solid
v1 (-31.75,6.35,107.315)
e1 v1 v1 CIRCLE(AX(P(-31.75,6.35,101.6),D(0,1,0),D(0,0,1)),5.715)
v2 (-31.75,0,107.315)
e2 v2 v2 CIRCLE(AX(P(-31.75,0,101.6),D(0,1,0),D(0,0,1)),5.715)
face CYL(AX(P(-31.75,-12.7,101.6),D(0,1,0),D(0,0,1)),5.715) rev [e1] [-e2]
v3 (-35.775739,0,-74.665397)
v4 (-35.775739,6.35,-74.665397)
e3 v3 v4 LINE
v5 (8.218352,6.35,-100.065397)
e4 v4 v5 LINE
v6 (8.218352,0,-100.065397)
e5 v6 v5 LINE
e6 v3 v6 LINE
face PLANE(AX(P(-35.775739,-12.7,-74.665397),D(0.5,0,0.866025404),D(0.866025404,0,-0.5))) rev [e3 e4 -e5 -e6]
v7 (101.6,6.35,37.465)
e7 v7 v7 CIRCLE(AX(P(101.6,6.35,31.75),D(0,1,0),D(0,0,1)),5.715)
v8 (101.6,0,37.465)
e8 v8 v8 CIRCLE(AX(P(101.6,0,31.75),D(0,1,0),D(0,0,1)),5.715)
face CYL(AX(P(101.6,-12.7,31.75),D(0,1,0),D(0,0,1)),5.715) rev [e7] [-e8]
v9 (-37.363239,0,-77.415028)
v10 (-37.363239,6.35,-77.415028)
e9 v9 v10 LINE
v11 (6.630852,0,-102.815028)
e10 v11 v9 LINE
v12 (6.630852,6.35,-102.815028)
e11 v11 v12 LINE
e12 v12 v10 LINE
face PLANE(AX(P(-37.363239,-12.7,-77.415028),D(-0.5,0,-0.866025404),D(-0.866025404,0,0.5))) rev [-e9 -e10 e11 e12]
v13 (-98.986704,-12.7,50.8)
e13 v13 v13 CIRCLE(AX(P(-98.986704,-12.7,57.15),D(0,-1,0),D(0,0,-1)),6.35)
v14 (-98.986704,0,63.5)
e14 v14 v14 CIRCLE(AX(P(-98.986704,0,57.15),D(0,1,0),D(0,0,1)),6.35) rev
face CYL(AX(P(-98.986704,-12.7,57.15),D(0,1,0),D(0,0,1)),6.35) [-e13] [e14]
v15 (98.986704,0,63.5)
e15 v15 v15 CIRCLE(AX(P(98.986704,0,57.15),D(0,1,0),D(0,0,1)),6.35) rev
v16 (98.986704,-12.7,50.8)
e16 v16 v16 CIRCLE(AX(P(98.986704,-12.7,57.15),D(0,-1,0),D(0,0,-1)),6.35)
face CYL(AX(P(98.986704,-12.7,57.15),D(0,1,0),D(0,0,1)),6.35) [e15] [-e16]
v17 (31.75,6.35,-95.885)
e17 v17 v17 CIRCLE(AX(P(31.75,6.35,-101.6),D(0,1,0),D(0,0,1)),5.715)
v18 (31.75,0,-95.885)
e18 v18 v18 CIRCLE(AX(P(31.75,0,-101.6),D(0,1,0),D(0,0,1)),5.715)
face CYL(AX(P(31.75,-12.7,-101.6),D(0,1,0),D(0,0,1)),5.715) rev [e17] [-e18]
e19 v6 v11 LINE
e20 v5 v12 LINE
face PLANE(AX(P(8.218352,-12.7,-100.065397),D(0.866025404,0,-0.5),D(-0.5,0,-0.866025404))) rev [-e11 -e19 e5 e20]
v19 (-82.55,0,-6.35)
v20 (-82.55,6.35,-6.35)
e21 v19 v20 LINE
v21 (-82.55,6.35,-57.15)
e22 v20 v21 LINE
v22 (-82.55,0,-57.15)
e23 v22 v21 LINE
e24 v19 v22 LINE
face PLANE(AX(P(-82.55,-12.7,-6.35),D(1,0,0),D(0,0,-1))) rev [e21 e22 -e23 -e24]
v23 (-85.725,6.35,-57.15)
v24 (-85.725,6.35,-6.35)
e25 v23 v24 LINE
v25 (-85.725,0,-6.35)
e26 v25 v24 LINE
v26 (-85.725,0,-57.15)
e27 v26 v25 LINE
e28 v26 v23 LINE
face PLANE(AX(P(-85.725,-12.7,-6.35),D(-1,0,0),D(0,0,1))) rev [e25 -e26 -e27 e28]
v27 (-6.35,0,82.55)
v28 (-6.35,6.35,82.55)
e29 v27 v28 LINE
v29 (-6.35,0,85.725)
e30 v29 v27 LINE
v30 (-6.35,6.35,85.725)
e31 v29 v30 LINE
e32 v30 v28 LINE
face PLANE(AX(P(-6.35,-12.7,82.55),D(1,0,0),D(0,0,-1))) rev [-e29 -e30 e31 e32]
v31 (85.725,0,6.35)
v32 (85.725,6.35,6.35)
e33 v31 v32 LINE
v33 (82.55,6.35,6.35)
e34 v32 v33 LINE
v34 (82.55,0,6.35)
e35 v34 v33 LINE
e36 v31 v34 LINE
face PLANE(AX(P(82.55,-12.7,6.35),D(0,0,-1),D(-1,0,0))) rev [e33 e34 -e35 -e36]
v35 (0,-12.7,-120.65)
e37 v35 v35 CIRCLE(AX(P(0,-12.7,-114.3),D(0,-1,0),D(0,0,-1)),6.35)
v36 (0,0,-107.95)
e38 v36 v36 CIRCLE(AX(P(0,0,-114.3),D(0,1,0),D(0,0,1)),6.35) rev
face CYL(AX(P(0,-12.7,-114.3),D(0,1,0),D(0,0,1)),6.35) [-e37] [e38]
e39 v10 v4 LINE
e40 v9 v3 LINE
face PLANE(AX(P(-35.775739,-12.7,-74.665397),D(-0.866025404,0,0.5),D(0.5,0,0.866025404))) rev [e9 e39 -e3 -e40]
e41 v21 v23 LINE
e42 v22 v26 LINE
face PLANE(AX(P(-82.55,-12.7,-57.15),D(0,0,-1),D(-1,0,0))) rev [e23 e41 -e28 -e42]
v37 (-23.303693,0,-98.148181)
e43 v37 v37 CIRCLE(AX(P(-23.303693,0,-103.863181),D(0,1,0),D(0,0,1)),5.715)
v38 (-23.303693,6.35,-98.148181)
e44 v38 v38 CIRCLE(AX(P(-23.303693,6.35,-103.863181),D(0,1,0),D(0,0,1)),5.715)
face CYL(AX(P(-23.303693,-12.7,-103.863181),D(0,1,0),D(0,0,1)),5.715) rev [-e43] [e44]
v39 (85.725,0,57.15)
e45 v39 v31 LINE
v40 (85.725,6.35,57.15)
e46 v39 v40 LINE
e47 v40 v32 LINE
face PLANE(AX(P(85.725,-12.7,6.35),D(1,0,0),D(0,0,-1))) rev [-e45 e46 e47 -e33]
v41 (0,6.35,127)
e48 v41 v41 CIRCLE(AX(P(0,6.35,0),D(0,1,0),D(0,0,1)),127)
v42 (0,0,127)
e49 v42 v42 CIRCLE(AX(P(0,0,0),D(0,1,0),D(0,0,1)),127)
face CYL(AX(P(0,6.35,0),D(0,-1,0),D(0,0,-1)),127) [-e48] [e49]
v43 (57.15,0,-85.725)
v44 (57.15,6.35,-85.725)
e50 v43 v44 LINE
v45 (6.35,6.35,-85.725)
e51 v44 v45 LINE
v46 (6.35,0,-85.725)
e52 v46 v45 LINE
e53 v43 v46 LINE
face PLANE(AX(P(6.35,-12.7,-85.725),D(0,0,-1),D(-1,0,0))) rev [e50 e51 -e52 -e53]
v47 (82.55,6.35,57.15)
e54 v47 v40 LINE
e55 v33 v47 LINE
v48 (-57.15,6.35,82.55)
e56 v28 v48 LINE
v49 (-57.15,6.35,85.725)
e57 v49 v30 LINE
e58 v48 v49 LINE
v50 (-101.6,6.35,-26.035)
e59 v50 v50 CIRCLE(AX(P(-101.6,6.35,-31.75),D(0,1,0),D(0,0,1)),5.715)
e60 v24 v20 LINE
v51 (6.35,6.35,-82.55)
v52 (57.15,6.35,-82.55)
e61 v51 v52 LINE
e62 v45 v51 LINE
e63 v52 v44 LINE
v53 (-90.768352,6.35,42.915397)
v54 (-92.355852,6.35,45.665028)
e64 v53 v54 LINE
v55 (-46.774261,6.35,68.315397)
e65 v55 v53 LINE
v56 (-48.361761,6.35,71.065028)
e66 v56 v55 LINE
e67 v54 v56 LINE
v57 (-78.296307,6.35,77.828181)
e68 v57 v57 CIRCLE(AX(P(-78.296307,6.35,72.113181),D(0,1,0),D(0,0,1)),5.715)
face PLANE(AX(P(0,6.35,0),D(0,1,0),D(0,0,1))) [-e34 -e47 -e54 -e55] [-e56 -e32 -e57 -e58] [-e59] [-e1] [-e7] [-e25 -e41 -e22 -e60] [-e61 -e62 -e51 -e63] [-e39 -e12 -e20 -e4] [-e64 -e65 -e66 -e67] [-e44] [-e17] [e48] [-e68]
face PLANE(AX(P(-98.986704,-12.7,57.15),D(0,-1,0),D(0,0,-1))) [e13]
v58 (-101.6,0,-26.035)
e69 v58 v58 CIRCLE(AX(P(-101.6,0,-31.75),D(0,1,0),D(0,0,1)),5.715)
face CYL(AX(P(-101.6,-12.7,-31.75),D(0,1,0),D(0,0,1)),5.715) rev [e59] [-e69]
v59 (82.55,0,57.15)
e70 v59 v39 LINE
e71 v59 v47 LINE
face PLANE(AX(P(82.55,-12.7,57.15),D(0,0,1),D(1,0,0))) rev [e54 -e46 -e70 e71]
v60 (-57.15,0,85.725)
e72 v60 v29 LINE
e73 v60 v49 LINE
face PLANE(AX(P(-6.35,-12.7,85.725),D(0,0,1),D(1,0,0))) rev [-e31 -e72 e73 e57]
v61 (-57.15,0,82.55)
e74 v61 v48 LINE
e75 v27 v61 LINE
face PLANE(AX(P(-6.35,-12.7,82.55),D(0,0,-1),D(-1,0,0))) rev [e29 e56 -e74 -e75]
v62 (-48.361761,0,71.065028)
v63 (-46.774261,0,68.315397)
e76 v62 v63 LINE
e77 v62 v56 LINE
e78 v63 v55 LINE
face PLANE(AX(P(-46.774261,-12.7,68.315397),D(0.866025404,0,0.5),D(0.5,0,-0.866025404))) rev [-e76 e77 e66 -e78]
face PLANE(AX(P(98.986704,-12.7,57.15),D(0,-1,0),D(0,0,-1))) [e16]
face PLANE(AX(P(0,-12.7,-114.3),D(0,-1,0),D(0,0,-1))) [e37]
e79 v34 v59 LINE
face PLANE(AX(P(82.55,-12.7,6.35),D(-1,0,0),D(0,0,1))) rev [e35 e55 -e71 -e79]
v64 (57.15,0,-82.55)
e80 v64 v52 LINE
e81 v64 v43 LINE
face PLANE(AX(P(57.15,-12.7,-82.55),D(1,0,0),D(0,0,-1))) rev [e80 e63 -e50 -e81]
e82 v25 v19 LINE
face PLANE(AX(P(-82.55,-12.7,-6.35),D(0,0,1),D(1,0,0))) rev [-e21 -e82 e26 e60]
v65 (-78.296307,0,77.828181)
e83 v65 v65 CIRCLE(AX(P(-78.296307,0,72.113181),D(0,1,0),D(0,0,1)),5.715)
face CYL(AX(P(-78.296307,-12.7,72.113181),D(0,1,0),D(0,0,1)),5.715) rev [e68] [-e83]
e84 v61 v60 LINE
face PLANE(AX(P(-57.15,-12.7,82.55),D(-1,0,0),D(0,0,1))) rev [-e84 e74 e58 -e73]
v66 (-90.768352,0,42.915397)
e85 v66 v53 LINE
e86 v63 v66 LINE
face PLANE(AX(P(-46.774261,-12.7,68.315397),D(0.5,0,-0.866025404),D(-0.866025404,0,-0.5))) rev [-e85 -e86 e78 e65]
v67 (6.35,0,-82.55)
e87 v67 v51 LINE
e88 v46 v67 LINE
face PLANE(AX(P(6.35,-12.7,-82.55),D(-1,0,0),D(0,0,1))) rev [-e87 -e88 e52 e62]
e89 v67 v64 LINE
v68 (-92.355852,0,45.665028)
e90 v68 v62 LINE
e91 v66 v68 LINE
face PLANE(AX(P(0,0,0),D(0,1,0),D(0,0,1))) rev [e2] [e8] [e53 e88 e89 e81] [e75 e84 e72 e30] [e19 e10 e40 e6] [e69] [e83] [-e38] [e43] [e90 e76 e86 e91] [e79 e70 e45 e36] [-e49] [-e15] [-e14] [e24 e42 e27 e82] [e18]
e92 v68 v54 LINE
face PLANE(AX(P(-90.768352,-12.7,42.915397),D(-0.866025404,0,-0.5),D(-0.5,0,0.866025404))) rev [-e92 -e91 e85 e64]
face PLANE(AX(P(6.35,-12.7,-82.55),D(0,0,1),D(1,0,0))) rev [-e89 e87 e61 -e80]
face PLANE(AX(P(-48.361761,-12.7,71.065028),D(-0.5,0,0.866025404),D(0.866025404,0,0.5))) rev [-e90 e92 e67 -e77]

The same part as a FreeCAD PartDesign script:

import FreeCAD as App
import Part
import Sketcher
Q = App.Units.Quantity

doc = App.newDocument("Part")
params = doc.addObject("Spreadsheet::Sheet", "Params")
for row, (alias, value) in enumerate([
    ("sketch1_diameter", "10 in"),
    ("pad1_length", "0.25 in"),
    ("sketch2_diameter", "0.5 in"),
    ("pad2_length", "0.5 in"),
    ("sketch3_diameter", "0.45 in"),
    ("sketch3_width", "2 in"),
    ("sketch3_length", "2 in"),
    ("sketch3_width2", "0.125 in"),
    ("sketch3_length2", "0.125 in"),
], start=1):
    params.set(f"A{row}", alias)
    params.set(f"B{row}", "=" + value)
    params.setAlias(f"B{row}", alias)

body = doc.addObject("PartDesign::Body", "Body")

# Sketch on XZ plane
sketch1 = body.newObject("Sketcher::SketchObject", "Sketch")
sketch1.AttachmentSupport = (doc.getObject("XZ_Plane"), [""])
sketch1.MapMode = "FlatFace"
sketch1.addGeometry(Part.Circle(App.Vector(0, 0, 0), App.Vector(0, 0, 1), 127), False)
sketch1.addConstraint([
    Sketcher.Constraint("Coincident", 0, 3, -1, 1),
    Sketcher.Constraint("Diameter", 0, Q("10 in")),
])
sketch1.setExpression("Constraints[1]", "Params.sketch1_diameter")
pad1 = body.newObject("PartDesign::Pad", "Pad")
pad1.Profile = sketch1
pad1.setExpression("Length", "Params.pad1_length")
pad1.Reversed = True

# Sketch on XZ plane
sketch2 = body.newObject("Sketcher::SketchObject", "Sketch001")
sketch2.AttachmentSupport = (doc.getObject("XZ_Plane"), [""])
sketch2.MapMode = "FlatFace"
sketch2.addGeometry([
    Part.Circle(App.Vector(0, -114, 0), App.Vector(0, 0, 1), 6),
    Part.Circle(App.Vector(-99, 57, 0), App.Vector(0, 0, 1), 6),
    Part.Circle(App.Vector(99, 57, 0), App.Vector(0, 0, 1), 6),
], False)
sketch2.addConstraint([
    Sketcher.Constraint("Equal", 0, 1),
    Sketcher.Constraint("Equal", 1, 2),
    Sketcher.Constraint("Symmetric", 1, 3, 2, 3, -2),
    Sketcher.Constraint("PointOnObject", 0, 3, -2),
    Sketcher.Constraint("Diameter", 0, Q("0.5 in")),
    Sketcher.Constraint("DistanceY", 0, 3, -1, 1, Q("4.5 in")),
    Sketcher.Constraint("DistanceY", -1, 1, 1, 3, Q("2.25 in")),
    Sketcher.Constraint("DistanceX", 1, 3, -1, 1, 98.986704),
])
sketch2.setExpression("Constraints[4]", "Params.sketch2_diameter")
pad2 = body.newObject("PartDesign::Pad", "Pad001")
pad2.Profile = sketch2
pad2.setExpression("Length", "Params.pad2_length")

# Sketch on XZ plane
sketch3 = body.newObject("Sketcher::SketchObject", "Sketch002")
sketch3.AttachmentSupport = (doc.getObject("XZ_Plane"), [""])
sketch3.MapMode = "FlatFace"
sketch3.AttachmentOffset = App.Placement(App.Vector(0, 0, -0.25 * 25.4), App.Rotation())
sketch3.addGeometry([
    Part.Circle(App.Vector(101.6, 31.8, 0), App.Vector(0, 0, 1), 5.7),  # 0
    Part.Circle(App.Vector(-31.8, 101.6, 0), App.Vector(0, 0, 1), 5.7),  # 1
    Part.Circle(App.Vector(-101.6, -31.8, 0), App.Vector(0, 0, 1), 5.7),  # 2
    Part.Circle(App.Vector(31.8, -101.6, 0), App.Vector(0, 0, 1), 5.7),  # 3
    Part.Circle(App.Vector(-78.3, 72.1, 0), App.Vector(0, 0, 1), 5.7),  # 4
    Part.Circle(App.Vector(-23.3, -103.9, 0), App.Vector(0, 0, 1), 5.7),  # 5
    Part.LineSegment(App.Vector(-57.1, 82.5, 0), App.Vector(-57.1, 85.7, 0)),  # 6
    Part.LineSegment(App.Vector(-57.1, 85.7, 0), App.Vector(-6.3, 85.7, 0)),  # 7
    Part.LineSegment(App.Vector(-6.3, 85.7, 0), App.Vector(-6.3, 82.5, 0)),  # 8
    Part.LineSegment(App.Vector(-6.3, 82.5, 0), App.Vector(-57.1, 82.5, 0)),  # 9
    Part.LineSegment(App.Vector(82.5, 6.3, 0), App.Vector(82.5, 57.1, 0)),  # 10
    Part.LineSegment(App.Vector(82.5, 57.1, 0), App.Vector(85.7, 57.1, 0)),  # 11
    Part.LineSegment(App.Vector(85.7, 57.1, 0), App.Vector(85.7, 6.3, 0)),  # 12
    Part.LineSegment(App.Vector(85.7, 6.3, 0), App.Vector(82.5, 6.3, 0)),  # 13
    Part.LineSegment(App.Vector(-85.7, -57.1, 0), App.Vector(-85.7, -6.3, 0)),  # 14
    Part.LineSegment(App.Vector(-85.7, -6.3, 0), App.Vector(-82.5, -6.3, 0)),  # 15
    Part.LineSegment(App.Vector(-82.5, -6.3, 0), App.Vector(-82.5, -57.1, 0)),  # 16
    Part.LineSegment(App.Vector(-82.5, -57.1, 0), App.Vector(-85.7, -57.1, 0)),  # 17
    Part.LineSegment(App.Vector(6.3, -85.7, 0), App.Vector(6.3, -82.5, 0)),  # 18
    Part.LineSegment(App.Vector(6.3, -82.5, 0), App.Vector(57.1, -82.5, 0)),  # 19
    Part.LineSegment(App.Vector(57.1, -82.5, 0), App.Vector(57.1, -85.7, 0)),  # 20
    Part.LineSegment(App.Vector(57.1, -85.7, 0), App.Vector(6.3, -85.7, 0)),  # 21
    Part.LineSegment(App.Vector(-92.4, 45.7, 0), App.Vector(-48.4, 71.1, 0)),  # 22
    Part.LineSegment(App.Vector(-48.4, 71.1, 0), App.Vector(-46.8, 68.3, 0)),  # 23
    Part.LineSegment(App.Vector(-46.8, 68.3, 0), App.Vector(-90.8, 42.9, 0)),  # 24
    Part.LineSegment(App.Vector(-90.8, 42.9, 0), App.Vector(-92.4, 45.7, 0)),  # 25
    Part.LineSegment(App.Vector(6.6, -102.8, 0), App.Vector(-37.4, -77.4, 0)),  # 26
    Part.LineSegment(App.Vector(-37.4, -77.4, 0), App.Vector(-35.8, -74.7, 0)),  # 27
    Part.LineSegment(App.Vector(-35.8, -74.7, 0), App.Vector(8.2, -100.1, 0)),  # 28
    Part.LineSegment(App.Vector(8.2, -100.1, 0), App.Vector(6.6, -102.8, 0)),  # 29
], False)
sketch3.addConstraint([
    Sketcher.Constraint("Coincident", 6, 2, 7, 1),
    Sketcher.Constraint("Coincident", 7, 2, 8, 1),
    Sketcher.Constraint("Coincident", 8, 2, 9, 1),
    Sketcher.Constraint("Coincident", 9, 2, 6, 1),
    Sketcher.Constraint("Coincident", 10, 2, 11, 1),
    Sketcher.Constraint("Coincident", 11, 2, 12, 1),
    Sketcher.Constraint("Coincident", 12, 2, 13, 1),
    Sketcher.Constraint("Coincident", 13, 2, 10, 1),
    Sketcher.Constraint("Coincident", 14, 2, 15, 1),
    Sketcher.Constraint("Coincident", 15, 2, 16, 1),
    Sketcher.Constraint("Coincident", 16, 2, 17, 1),
    Sketcher.Constraint("Coincident", 17, 2, 14, 1),
    Sketcher.Constraint("Coincident", 18, 2, 19, 1),
    Sketcher.Constraint("Coincident", 19, 2, 20, 1),
    Sketcher.Constraint("Coincident", 20, 2, 21, 1),
    Sketcher.Constraint("Coincident", 21, 2, 18, 1),
    Sketcher.Constraint("Coincident", 22, 2, 23, 1),
    Sketcher.Constraint("Coincident", 23, 2, 24, 1),
    Sketcher.Constraint("Coincident", 24, 2, 25, 1),
    Sketcher.Constraint("Coincident", 25, 2, 22, 1),
    Sketcher.Constraint("Coincident", 26, 2, 27, 1),
    Sketcher.Constraint("Coincident", 27, 2, 28, 1),
    Sketcher.Constraint("Coincident", 28, 2, 29, 1),
    Sketcher.Constraint("Coincident", 29, 2, 26, 1),
    Sketcher.Constraint("Vertical", 6),
    Sketcher.Constraint("Horizontal", 7),
    Sketcher.Constraint("Vertical", 8),
    Sketcher.Constraint("Horizontal", 9),
    Sketcher.Constraint("Vertical", 10),
    Sketcher.Constraint("Horizontal", 11),
    Sketcher.Constraint("Vertical", 12),
    Sketcher.Constraint("Horizontal", 13),
    Sketcher.Constraint("Vertical", 14),
    Sketcher.Constraint("Horizontal", 15),
    Sketcher.Constraint("Vertical", 16),
    Sketcher.Constraint("Horizontal", 17),
    Sketcher.Constraint("Vertical", 18),
    Sketcher.Constraint("Horizontal", 19),
    Sketcher.Constraint("Vertical", 20),
    Sketcher.Constraint("Horizontal", 21),
    Sketcher.Constraint("Equal", 0, 1),
    Sketcher.Constraint("Equal", 1, 2),
    Sketcher.Constraint("Equal", 2, 3),
    Sketcher.Constraint("Equal", 3, 4),
    Sketcher.Constraint("Equal", 4, 5),
    Sketcher.Constraint("Symmetric", 0, 3, 2, 3, -1, 1),
    Sketcher.Constraint("Symmetric", 1, 3, 3, 3, -1, 1),
    Sketcher.Constraint("Symmetric", 12, 2, 14, 2, -1, 1),
    Sketcher.Constraint("Symmetric", 10, 2, 16, 2, -1, 1),
    Sketcher.Constraint("Symmetric", 8, 2, 18, 2, -1, 1),
    Sketcher.Constraint("Symmetric", 6, 2, 20, 2, -1, 1),
    Sketcher.Constraint("Perpendicular", 22, 23),
    Sketcher.Constraint("Perpendicular", 23, 24),
    Sketcher.Constraint("Perpendicular", 24, 25),
    Sketcher.Constraint("Perpendicular", 26, 27),
    Sketcher.Constraint("Perpendicular", 27, 28),
    Sketcher.Constraint("Perpendicular", 28, 29),
    Sketcher.Constraint("Equal", 17, 6),
    Sketcher.Constraint("Equal", 21, 10),
    Sketcher.Constraint("Equal", 24, 26),
    Sketcher.Constraint("Equal", 25, 27),
    Sketcher.Constraint("Diameter", 0, Q("0.45 in")),
    Sketcher.Constraint("DistanceX", 7, 1, 7, 2, Q("2 in")),
    Sketcher.Constraint("Distance", 22, Q("2 in")),
    Sketcher.Constraint("DistanceX", -1, 1, 0, 3, Q("4 in")),
    Sketcher.Constraint("DistanceY", -1, 1, 1, 3, Q("4 in")),
    Sketcher.Constraint("Angle", 22, Q("30 deg")),
    Sketcher.Constraint("Angle", 26, Q("150 deg")),
    Sketcher.Constraint("DistanceX", 6, 2, 1, 3, Q("1 in")),
    Sketcher.Constraint("DistanceY", 0, 3, 8, 2, Q("2 in")),
    Sketcher.Constraint("DistanceY", 0, 3, 10, 2, Q("1 in")),
    Sketcher.Constraint("DistanceX", 15, 2, 9, 2, Q("1 in")),
    Sketcher.Constraint("DistanceY", 2, 3, 0, 3, Q("2.5 in")),
    Sketcher.Constraint("DistanceX", 1, 3, 3, 3, Q("2.5 in")),
    Sketcher.Constraint("DistanceX", 11, 1, 11, 2, Q("0.125 in")),
    Sketcher.Constraint("Distance", 23, Q("0.125 in")),
    Sketcher.Constraint("DistanceY", -1, 1, 4, 3, 72.113181),
    Sketcher.Constraint("DistanceY", 5, 3, -1, 1, 103.863181),
    Sketcher.Constraint("DistanceX", 22, 2, -1, 1, 48.361761),
    Sketcher.Constraint("DistanceX", 26, 2, -1, 1, 37.363239),
    Sketcher.Constraint("DistanceX", 4, 3, -1, 1, 78.296307),
    Sketcher.Constraint("DistanceX", 5, 3, -1, 1, 23.303693),
    Sketcher.Constraint("DistanceY", -1, 1, 22, 2, 71.065028),
    Sketcher.Constraint("DistanceY", 26, 2, -1, 1, 77.415028),
])
sketch3.setExpression("Constraints[61]", "Params.sketch3_diameter")
sketch3.setExpression("Constraints[62]", "Params.sketch3_width")
sketch3.setExpression("Constraints[63]", "Params.sketch3_length")
sketch3.setExpression("Constraints[74]", "Params.sketch3_width2")
sketch3.setExpression("Constraints[75]", "Params.sketch3_length2")
pocket1 = body.newObject("PartDesign::Pocket", "Pocket")
pocket1.Profile = sketch3
pocket1.Type = "ThroughAll"
pocket1.Reversed = True

doc.recompute()
